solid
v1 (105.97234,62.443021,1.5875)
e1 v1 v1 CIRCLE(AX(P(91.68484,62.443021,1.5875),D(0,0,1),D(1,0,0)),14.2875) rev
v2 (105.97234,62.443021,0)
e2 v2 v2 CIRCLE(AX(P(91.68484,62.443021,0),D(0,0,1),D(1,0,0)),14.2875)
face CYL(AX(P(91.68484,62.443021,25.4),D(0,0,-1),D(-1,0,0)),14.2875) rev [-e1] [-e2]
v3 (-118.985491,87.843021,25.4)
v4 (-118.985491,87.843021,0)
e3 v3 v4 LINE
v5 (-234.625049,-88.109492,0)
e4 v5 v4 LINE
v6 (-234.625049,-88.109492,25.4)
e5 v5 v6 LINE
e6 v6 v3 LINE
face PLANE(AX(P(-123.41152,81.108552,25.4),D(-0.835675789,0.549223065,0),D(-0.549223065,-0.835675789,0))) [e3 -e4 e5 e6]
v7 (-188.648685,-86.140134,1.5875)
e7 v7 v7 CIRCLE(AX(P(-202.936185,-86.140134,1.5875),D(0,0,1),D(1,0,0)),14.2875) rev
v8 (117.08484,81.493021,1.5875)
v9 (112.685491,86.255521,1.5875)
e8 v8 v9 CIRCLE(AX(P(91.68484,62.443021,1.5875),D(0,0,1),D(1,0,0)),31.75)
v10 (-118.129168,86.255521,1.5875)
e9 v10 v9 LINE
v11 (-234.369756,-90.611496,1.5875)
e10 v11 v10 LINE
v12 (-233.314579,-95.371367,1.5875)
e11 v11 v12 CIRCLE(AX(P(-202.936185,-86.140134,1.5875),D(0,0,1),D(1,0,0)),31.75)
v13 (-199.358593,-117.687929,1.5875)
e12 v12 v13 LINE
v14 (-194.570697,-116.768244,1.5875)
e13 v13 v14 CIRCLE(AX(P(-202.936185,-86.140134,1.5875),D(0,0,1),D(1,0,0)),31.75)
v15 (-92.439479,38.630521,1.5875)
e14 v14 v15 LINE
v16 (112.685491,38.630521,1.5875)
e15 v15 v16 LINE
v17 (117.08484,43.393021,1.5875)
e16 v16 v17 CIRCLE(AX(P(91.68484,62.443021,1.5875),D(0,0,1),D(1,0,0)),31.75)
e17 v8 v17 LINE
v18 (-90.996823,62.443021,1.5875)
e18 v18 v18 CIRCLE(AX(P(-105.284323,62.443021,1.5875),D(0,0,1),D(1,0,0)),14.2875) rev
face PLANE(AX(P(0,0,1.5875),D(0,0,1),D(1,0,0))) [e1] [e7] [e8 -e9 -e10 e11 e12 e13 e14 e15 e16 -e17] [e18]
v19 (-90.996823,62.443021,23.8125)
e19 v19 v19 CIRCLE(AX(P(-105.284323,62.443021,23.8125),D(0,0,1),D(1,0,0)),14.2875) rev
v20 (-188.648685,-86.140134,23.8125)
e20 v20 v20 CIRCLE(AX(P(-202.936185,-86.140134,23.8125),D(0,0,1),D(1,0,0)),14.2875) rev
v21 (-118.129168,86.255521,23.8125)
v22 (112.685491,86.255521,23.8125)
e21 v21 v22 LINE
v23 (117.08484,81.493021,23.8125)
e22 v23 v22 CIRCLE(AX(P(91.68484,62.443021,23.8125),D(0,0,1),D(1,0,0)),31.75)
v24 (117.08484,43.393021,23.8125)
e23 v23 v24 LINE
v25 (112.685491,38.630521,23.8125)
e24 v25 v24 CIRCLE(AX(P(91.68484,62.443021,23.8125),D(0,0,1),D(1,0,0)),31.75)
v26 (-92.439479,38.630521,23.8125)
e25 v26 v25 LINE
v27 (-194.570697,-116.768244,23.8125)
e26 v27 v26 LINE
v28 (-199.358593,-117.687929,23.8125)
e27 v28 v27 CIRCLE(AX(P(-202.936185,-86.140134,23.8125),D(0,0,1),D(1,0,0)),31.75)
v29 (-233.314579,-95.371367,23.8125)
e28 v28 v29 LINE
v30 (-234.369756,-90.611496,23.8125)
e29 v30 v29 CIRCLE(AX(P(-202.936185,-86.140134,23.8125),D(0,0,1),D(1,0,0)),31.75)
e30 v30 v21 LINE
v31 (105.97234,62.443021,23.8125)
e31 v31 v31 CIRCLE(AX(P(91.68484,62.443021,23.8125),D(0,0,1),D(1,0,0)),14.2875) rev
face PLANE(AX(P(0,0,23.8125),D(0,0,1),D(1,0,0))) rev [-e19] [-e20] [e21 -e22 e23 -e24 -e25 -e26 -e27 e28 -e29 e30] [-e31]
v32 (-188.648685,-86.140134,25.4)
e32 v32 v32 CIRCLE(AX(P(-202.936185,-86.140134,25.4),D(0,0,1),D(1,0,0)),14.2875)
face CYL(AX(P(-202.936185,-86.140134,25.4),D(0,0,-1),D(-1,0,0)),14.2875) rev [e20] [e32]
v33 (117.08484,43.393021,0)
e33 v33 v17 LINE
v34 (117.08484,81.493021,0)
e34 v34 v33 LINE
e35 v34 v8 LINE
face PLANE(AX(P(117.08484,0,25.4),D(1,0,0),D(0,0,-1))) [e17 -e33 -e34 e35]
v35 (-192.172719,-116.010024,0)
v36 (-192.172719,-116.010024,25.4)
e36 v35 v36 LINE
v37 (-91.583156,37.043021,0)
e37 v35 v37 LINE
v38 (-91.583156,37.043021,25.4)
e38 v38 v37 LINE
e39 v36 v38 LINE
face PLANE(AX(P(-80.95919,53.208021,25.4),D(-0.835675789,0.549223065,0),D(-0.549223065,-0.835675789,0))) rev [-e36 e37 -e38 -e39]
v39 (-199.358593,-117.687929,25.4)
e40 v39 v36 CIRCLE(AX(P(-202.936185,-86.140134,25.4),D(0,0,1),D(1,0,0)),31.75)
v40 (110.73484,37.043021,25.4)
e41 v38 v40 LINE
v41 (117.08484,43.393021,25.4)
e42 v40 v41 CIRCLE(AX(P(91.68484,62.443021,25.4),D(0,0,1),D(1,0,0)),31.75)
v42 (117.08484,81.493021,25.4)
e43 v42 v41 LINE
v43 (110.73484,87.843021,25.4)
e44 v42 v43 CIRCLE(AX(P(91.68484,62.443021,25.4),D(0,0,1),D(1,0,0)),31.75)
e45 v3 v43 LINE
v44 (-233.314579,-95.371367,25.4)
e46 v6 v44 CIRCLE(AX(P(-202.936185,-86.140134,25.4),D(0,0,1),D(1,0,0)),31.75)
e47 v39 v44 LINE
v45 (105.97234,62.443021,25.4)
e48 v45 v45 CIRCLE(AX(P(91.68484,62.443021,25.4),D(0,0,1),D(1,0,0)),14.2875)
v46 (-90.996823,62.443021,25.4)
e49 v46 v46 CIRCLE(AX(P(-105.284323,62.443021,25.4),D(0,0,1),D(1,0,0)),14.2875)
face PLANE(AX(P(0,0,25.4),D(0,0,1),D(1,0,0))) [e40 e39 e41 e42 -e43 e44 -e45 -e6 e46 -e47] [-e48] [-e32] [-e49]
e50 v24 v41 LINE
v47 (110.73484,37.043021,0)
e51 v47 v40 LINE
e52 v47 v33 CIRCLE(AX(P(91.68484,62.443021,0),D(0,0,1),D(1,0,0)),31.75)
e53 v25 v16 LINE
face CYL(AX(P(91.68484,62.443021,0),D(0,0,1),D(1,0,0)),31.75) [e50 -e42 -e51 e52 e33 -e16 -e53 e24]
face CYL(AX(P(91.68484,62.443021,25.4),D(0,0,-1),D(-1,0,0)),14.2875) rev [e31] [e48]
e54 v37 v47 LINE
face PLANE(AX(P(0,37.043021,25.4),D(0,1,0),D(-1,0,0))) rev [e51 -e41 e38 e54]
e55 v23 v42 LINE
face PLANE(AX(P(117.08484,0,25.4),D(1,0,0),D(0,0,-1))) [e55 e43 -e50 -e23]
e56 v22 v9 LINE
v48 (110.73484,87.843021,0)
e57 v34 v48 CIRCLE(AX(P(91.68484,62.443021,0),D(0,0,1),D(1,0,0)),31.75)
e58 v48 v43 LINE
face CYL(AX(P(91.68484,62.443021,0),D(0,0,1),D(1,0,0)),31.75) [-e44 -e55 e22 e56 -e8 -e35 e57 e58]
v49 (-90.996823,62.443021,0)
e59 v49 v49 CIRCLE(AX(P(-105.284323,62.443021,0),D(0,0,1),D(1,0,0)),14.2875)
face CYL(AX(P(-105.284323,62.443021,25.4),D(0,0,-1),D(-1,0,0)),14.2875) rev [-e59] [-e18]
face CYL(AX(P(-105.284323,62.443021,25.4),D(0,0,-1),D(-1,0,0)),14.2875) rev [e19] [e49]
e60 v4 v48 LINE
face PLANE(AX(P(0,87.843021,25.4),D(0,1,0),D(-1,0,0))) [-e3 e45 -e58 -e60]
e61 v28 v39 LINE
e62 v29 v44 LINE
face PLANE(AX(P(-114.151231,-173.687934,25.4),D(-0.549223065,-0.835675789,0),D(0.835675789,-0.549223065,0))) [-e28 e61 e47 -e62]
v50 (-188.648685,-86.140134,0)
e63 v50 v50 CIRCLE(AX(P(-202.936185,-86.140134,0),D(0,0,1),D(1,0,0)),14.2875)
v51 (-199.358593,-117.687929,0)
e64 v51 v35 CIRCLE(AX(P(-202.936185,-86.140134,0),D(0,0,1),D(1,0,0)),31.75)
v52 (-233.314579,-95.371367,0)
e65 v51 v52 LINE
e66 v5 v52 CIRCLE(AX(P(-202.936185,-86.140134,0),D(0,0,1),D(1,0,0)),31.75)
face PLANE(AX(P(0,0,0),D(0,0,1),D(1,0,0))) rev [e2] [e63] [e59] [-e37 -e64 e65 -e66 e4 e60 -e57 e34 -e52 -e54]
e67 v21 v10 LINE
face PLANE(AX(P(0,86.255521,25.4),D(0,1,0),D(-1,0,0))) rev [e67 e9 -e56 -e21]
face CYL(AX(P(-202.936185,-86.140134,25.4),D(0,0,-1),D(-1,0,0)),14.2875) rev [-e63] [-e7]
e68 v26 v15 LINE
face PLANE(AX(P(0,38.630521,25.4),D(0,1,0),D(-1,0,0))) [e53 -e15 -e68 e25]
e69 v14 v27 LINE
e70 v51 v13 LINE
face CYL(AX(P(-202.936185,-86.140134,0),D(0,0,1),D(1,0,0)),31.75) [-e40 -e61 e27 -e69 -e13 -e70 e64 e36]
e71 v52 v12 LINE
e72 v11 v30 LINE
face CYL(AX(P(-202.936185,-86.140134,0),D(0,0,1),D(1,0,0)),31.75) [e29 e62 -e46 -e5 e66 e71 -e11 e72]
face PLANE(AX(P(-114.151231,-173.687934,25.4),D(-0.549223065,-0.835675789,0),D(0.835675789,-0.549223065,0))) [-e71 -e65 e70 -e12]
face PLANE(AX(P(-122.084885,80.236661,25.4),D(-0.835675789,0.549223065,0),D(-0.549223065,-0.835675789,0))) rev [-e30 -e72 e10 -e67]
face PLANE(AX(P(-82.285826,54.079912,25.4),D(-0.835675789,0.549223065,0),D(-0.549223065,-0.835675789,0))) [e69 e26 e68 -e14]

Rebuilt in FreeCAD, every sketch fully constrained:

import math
import FreeCAD as App
import Part
import Sketcher
from FreeCAD import Vector
Q = App.Units.Quantity


def faces_at(feature, points):
    """Names of the faces that lie closest to the given points."""
    faces = feature.Shape.Faces
    near = lambda p: min(range(len(faces)), key=lambda i: faces[i].distToShape(Part.Vertex(*p))[0])
    return sorted({f"Face{near(p) + 1}" for p in points})

doc = App.newDocument("Part")
body = doc.addObject("PartDesign::Body", "Body")

sketch1 = doc.addObject("Sketcher::SketchObject", "Sketch")
body.addObject(sketch1)
sketch1.AttachmentSupport = (doc.XY_Plane, [""])
sketch1.MapMode = "FlatFace"
sketch1.addGeometry([
    Part.LineSegment(Vector(117.08484, 87.843021, 0), Vector(-118.985491, 87.843021, 0)),
    Part.LineSegment(Vector(-118.985491, 87.843021, 0), Vector(-237.562751, -92.579382, 0)),
    Part.LineSegment(Vector(-237.562751, -92.579382, 0), Vector(-195.110421, -120.479914, 0)),
    Part.LineSegment(Vector(-195.110421, -120.479914, 0), Vector(-91.583156, 37.043021, 0)),
    Part.LineSegment(Vector(-91.583156, 37.043021, 0), Vector(117.08484, 37.043021, 0)),
    Part.LineSegment(Vector(117.08484, 37.043021, 0), Vector(117.08484, 87.843021, 0)),
], False)
sketch1.addConstraint([
    Sketcher.Constraint("Coincident", 0, 2, 1, 1),
    Sketcher.Constraint("Coincident", 1, 2, 2, 1),
    Sketcher.Constraint("Coincident", 2, 2, 3, 1),
    Sketcher.Constraint("Coincident", 3, 2, 4, 1),
    Sketcher.Constraint("Coincident", 4, 2, 5, 1),
    Sketcher.Constraint("Coincident", 5, 2, 0, 1),
    Sketcher.Constraint("Horizontal", 0),
    Sketcher.Constraint("Horizontal", 4),
    Sketcher.Constraint("Vertical", 5),
    Sketcher.Constraint("Perpendicular", 1, 2),
    Sketcher.Constraint("Perpendicular", 2, 3),
    Sketcher.Constraint("DistanceY", 5, 1, 5, 2, Q("2 in")),
    Sketcher.Constraint("Distance", 2, Q("2 in")),
    Sketcher.Constraint("Distance", 1, Q("8.5 in")),
    Sketcher.Constraint("DistanceX", 0, 2, 0, 1, 236.070331),
    Sketcher.Constraint("DistanceX", 4, 1, 4, 2, 208.667995),
    Sketcher.Constraint("DistanceX", 0, 2, -1, 1, 118.985491),
    Sketcher.Constraint("DistanceY", -1, 1, 0, 2, 87.843021),
])
pad1 = doc.addObject("PartDesign::Pad", "Pad")
body.addObject(pad1)
pad1.Profile = sketch1
pad1.Length = Q("1 in")
doc.recompute()

thickness = doc.addObject("PartDesign::Thickness", "Thickness")
body.addObject(thickness)
thickness.Base = (pad1, faces_at(pad1, [(117.085, 62.443, 12.7)]))
thickness.Value = Q("0.0625 in")
thickness.Reversed = True
thickness.Join = "Intersection"

sketch2 = doc.addObject("Sketcher::SketchObject", "Sketch001")
body.addObject(sketch2)
sketch2.Placement = App.Placement(Vector(-114.151231, -173.687934, 0), App.Rotation(Vector(0.835675789, -0.549223065, 0), Vector(0, 0, 0.999999999), Vector(-0.549223065, -0.835675789, 0), "ZXY"))
sketch2.addGeometry([
    Part.LineSegment(Vector(-146.091207, 23.8125, 0), Vector(-146.091207, 1.5875, 0)),
    Part.LineSegment(Vector(-146.091207, 1.5875, 0), Vector(-98.466207, 1.5875, 0)),
    Part.LineSegment(Vector(-98.466207, 1.5875, 0), Vector(-98.466207, 23.8125, 0)),
    Part.LineSegment(Vector(-98.466207, 23.8125, 0), Vector(-146.091207, 23.8125, 0)),
], False)
sketch2.addConstraint([
    Sketcher.Constraint("Coincident", 0, 2, 1, 1),
    Sketcher.Constraint("Coincident", 1, 2, 2, 1),
    Sketcher.Constraint("Coincident", 2, 2, 3, 1),
    Sketcher.Constraint("Coincident", 3, 2, 0, 1),
    Sketcher.Constraint("Vertical", 0),
    Sketcher.Constraint("Horizontal", 1),
    Sketcher.Constraint("Vertical", 2),
    Sketcher.Constraint("Horizontal", 3),
    Sketcher.Constraint("DistanceX", 1, 1, 1, 2, Q("1.875 in")),
    Sketcher.Constraint("DistanceY", 0, 2, 0, 1, Q("0.875 in")),
    Sketcher.Constraint("DistanceY", -1, 1, 0, 2, Q("0.0625 in")),
    Sketcher.Constraint("DistanceX", 0, 2, -1, 1, 146.091207),
])
pocket1 = doc.addObject("PartDesign::Pocket", "Pocket")
body.addObject(pocket1)
pocket1.Profile = sketch2
pocket1.Length = Q("1 in")

sketch3 = doc.addObject("Sketcher::SketchObject", "Sketch002")
body.addObject(sketch3)
sketch3.AttachmentSupport = (doc.XY_Plane, [""])
sketch3.MapMode = "FlatFace"
sketch3.addGeometry([
    Part.Circle(Vector(-202.936185, -86.140134, 0), Vector(0, 0, 1), 14.2875),
    Part.Circle(Vector(91.68484, 62.443021, 0), Vector(0, 0, 1), 14.2875),
    Part.Circle(Vector(-105.284323, 62.443021, 0), Vector(0, 0, 1), 14.2875),
], False)
sketch3.addConstraint([
    Sketcher.Constraint("Equal", 0, 1),
    Sketcher.Constraint("Equal", 1, 2),
    Sketcher.Constraint("Horizontal", 1, 3, 2, 3),
    Sketcher.Constraint("Diameter", 0, Q("1.125 in")),
    Sketcher.Constraint("DistanceX", -1, 1, 1, 3, 91.68484),
    Sketcher.Constraint("DistanceY", -1, 1, 1, 3, 62.443021),
    Sketcher.Constraint("DistanceX", 0, 3, 2, 3, 97.651861),
    Sketcher.Constraint("DistanceX", 0, 3, -1, 1, 202.936185),
    Sketcher.Constraint("DistanceY", 0, 3, -1, 1, 86.140134),
])
pocket2 = doc.addObject("PartDesign::Pocket", "Pocket001")
body.addObject(pocket2)
pocket2.Profile = sketch3
pocket2.Type = "ThroughAll"
pocket2.Reversed = True

sketch4 = doc.addObject("Sketcher::SketchObject", "Sketch003")
body.addObject(sketch4)
sketch4.AttachmentSupport = (doc.XY_Plane, [""])
sketch4.MapMode = "FlatFace"
sketch4.AttachmentOffset = App.Placement(Vector(0, 0, 1 * 25.4), App.Rotation())
sketch4.addGeometry([
    Part.LineSegment(Vector(117.08484, 81.493021, 0), Vector(117.08484, 87.843021, 0)),
    Part.LineSegment(Vector(117.08484, 87.843021, 0), Vector(110.73484, 87.843021, 0)),
    Part.ArcOfCircle(Part.Circle(Vector(91.68484, 62.443021, 0), Vector(0, 0, 1), 31.75), math.radians(36.869898), math.radians(53.130102)),
    Part.LineSegment(Vector(117.08484, 37.043021, 0), Vector(117.08484, 43.393021, 0)),
    Part.ArcOfCircle(Part.Circle(Vector(91.68484, 62.443021, 0), Vector(0, 0, 1), 31.75), math.radians(-53.130102), math.radians(-36.869898)),
    Part.LineSegment(Vector(110.73484, 37.043021, 0), Vector(117.08484, 37.043021, 0)),
    Part.ArcOfCircle(Part.Circle(Vector(-202.936185, -86.140134, 0), Vector(0, 0, 1), 31.75), math.radians(-176.443831), math.radians(-163.097288)),
    Part.LineSegment(Vector(-234.625049, -88.109492, 0), Vector(-237.562751, -92.579382, 0)),
    Part.LineSegment(Vector(-237.562751, -92.579382, 0), Vector(-233.314579, -95.371367, 0)),
    Part.LineSegment(Vector(-195.110421, -120.479914, 0), Vector(-192.172719, -116.010024, 0)),
    Part.ArcOfCircle(Part.Circle(Vector(-202.936185, -86.140134, 0), Vector(0, 0, 1), 31.75), math.radians(-83.530168), math.radians(-70.183626)),
    Part.LineSegment(Vector(-199.358593, -117.687929, 0), Vector(-195.110421, -120.479914, 0)),
], False)
sketch4.addConstraint([
    Sketcher.Constraint("Coincident", 0, 2, 1, 1),
    Sketcher.Constraint("Coincident", 1, 2, 2, 2),
    Sketcher.Constraint("Coincident", 2, 1, 0, 1),
    Sketcher.Constraint("Coincident", 3, 2, 4, 2),
    Sketcher.Constraint("Coincident", 4, 1, 5, 1),
    Sketcher.Constraint("Coincident", 5, 2, 3, 1),
    Sketcher.Constraint("Coincident", 6, 1, 7, 1),
    Sketcher.Constraint("Coincident", 7, 2, 8, 1),
    Sketcher.Constraint("Coincident", 8, 2, 6, 2),
    Sketcher.Constraint("Coincident", 9, 2, 10, 2),
    Sketcher.Constraint("Coincident", 10, 1, 11, 1),
    Sketcher.Constraint("Coincident", 11, 2, 9, 1),
    Sketcher.Constraint("Vertical", 0),
    Sketcher.Constraint("Horizontal", 1),
    Sketcher.Constraint("Vertical", 3),
    Sketcher.Constraint("Horizontal", 5),
    Sketcher.Constraint("Coincident", 4, 3, 2, 3),
    Sketcher.Constraint("Coincident", 10, 3, 6, 3),
    Sketcher.Constraint("Equal", 2, 4),
    Sketcher.Constraint("Equal", 4, 6),
    Sketcher.Constraint("Equal", 6, 10),
    Sketcher.Constraint("Perpendicular", 7, 8),
    Sketcher.Constraint("Perpendicular", 8, 9),
    Sketcher.Constraint("Perpendicular", 9, 11),
    Sketcher.Constraint("Vertical", 2, 1, 3, 2),
    Sketcher.Constraint("Vertical", 1, 2, 4, 1),
    Sketcher.Constraint("Equal", 5, 0),
    Sketcher.Constraint("Equal", 7, 9),
    Sketcher.Constraint("Equal", 8, 11),
    Sketcher.Constraint("Radius", 2, Q("1.25 in")),
    Sketcher.Constraint("DistanceX", 2, 3, 0, 2, Q("1 in")),
    Sketcher.Constraint("DistanceX", -1, 1, 2, 3, 91.68484),
    Sketcher.Constraint("DistanceY", -1, 1, 2, 3, 62.443021),
    Sketcher.Constraint("DistanceX", 6, 1, -1, 1, 234.625049),
    Sketcher.Constraint("DistanceX", 7, 2, -1, 1, 237.562751),
    Sketcher.Constraint("DistanceY", 7, 2, -1, 1, 92.579382),
    Sketcher.Constraint("DistanceX", 8, 2, -1, 1, 233.314579),
    Sketcher.Constraint("DistanceX", 9, 2, -1, 1, 192.172719),
])
pocket3 = doc.addObject("PartDesign::Pocket", "Pocket002")
body.addObject(pocket3)
pocket3.Profile = sketch4
pocket3.Length = Q("1 in")

doc.recompute()
